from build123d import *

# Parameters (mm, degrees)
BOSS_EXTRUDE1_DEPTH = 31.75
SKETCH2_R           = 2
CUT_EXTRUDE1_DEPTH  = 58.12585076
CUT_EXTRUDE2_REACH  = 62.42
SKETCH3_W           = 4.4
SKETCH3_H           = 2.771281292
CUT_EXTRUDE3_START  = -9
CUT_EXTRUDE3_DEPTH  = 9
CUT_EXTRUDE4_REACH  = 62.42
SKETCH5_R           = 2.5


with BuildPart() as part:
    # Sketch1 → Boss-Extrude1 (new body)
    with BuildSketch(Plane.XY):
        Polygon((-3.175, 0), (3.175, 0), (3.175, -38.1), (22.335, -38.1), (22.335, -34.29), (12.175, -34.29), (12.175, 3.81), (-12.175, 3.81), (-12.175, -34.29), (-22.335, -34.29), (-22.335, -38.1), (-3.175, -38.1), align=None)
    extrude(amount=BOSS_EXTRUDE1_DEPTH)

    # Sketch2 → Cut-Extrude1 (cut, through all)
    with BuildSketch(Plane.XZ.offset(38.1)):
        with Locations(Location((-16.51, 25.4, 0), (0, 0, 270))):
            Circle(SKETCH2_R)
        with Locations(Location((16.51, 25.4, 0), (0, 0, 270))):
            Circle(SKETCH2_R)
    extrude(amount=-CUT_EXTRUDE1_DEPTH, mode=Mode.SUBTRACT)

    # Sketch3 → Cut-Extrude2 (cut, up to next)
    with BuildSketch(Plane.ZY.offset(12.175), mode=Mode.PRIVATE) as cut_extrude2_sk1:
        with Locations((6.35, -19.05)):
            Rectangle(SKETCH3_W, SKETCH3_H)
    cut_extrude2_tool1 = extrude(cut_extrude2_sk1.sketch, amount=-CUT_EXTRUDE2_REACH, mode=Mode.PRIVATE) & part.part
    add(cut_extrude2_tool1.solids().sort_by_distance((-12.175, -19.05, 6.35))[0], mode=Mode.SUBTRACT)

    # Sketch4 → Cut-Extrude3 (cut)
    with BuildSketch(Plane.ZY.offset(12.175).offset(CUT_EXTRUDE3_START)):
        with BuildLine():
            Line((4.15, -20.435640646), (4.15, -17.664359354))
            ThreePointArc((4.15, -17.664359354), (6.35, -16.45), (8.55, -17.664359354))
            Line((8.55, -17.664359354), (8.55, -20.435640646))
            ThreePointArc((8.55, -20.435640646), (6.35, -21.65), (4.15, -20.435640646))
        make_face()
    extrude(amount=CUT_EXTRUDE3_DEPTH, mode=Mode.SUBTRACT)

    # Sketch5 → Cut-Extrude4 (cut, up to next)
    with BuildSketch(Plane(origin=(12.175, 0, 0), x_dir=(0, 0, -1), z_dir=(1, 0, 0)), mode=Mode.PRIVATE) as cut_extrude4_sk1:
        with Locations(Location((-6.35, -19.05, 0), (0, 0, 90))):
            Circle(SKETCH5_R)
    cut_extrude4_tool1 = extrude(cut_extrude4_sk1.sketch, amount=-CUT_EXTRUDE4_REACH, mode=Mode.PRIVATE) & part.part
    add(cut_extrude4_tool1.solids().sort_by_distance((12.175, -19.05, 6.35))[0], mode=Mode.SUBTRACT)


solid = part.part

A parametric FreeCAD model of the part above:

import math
import FreeCAD as App
import Part
import Sketcher
from FreeCAD import Vector
Q = App.Units.Quantity

doc = App.newDocument("Part")
body = doc.addObject("PartDesign::Body", "Body")

sketch1 = body.newObject("Sketcher::SketchObject", "Sketch")
sketch1.AttachmentSupport = (doc.getObject("XY_Plane"), [""])
sketch1.MapMode = "FlatFace"
sketch1.addGeometry([
    Part.LineSegment(Vector(-3.2, 0, 0), Vector(3.2, 0, 0)),
    Part.LineSegment(Vector(3.2, 0, 0), Vector(3.2, -38.1, 0)),
    Part.LineSegment(Vector(3.2, -38.1, 0), Vector(22.3, -38.1, 0)),
    Part.LineSegment(Vector(22.3, -38.1, 0), Vector(22.3, -34.3, 0)),
    Part.LineSegment(Vector(22.3, -34.3, 0), Vector(12.2, -34.3, 0)),
    Part.LineSegment(Vector(12.2, -34.3, 0), Vector(12.2, 3.8, 0)),
    Part.LineSegment(Vector(12.2, 3.8, 0), Vector(-12.2, 3.8, 0)),
    Part.LineSegment(Vector(-12.2, 3.8, 0), Vector(-12.2, -34.3, 0)),
    Part.LineSegment(Vector(-12.2, -34.3, 0), Vector(-22.3, -34.3, 0)),
    Part.LineSegment(Vector(-22.3, -34.3, 0), Vector(-22.3, -38.1, 0)),
    Part.LineSegment(Vector(-22.3, -38.1, 0), Vector(-3.2, -38.1, 0)),
    Part.LineSegment(Vector(-3.2, -38.1, 0), Vector(-3.2, 0, 0)),
], False)
sketch1.addConstraint([
    Sketcher.Constraint("Coincident", 0, 2, 1, 1),
    Sketcher.Constraint("Coincident", 1, 2, 2, 1),
    Sketcher.Constraint("Coincident", 2, 2, 3, 1),
    Sketcher.Constraint("Coincident", 3, 2, 4, 1),
    Sketcher.Constraint("Coincident", 4, 2, 5, 1),
    Sketcher.Constraint("Coincident", 5, 2, 6, 1),
    Sketcher.Constraint("Coincident", 6, 2, 7, 1),
    Sketcher.Constraint("Coincident", 7, 2, 8, 1),
    Sketcher.Constraint("Coincident", 8, 2, 9, 1),
    Sketcher.Constraint("Coincident", 9, 2, 10, 1),
    Sketcher.Constraint("Coincident", 10, 2, 11, 1),
    Sketcher.Constraint("Coincident", 11, 2, 0, 1),
    Sketcher.Constraint("Horizontal", 0),
    Sketcher.Constraint("Vertical", 1),
    Sketcher.Constraint("Horizontal", 2),
    Sketcher.Constraint("Vertical", 3),
    Sketcher.Constraint("Horizontal", 4),
    Sketcher.Constraint("Vertical", 5),
    Sketcher.Constraint("Horizontal", 6),
    Sketcher.Constraint("Vertical", 7),
    Sketcher.Constraint("Horizontal", 8),
    Sketcher.Constraint("Vertical", 9),
    Sketcher.Constraint("Horizontal", 10),
    Sketcher.Constraint("Vertical", 11),
    Sketcher.Constraint("Symmetric", 0, 2, 11, 2, -1, 1),
    Sketcher.Constraint("Symmetric", 4, 2, 7, 2, -2),
    Sketcher.Constraint("Symmetric", 2, 2, 9, 2, -2),
    Sketcher.Constraint("Equal", 1, 5),
    Sketcher.Constraint("DistanceY", 1, 2, 1, 1, Q("38.1 mm")),
    Sketcher.Constraint("DistanceX", 1, 2, 4, 2, Q("9 mm")),
    Sketcher.Constraint("DistanceX", 0, 1, 0, 2, Q("6.35 mm")),
    Sketcher.Constraint("DistanceX", 2, 1, 2, 2, Q("19.16 mm")),
    Sketcher.Constraint("DistanceY", 3, 1, 3, 2, Q("3.81 mm")),
])
pad1 = body.newObject("PartDesign::Pad", "Pad")
pad1.Profile = sketch1
pad1.Length = 31.75

sketch2 = body.newObject("Sketcher::SketchObject", "Sketch001")
sketch2.AttachmentSupport = (doc.getObject("XZ_Plane"), [""])
sketch2.MapMode = "FlatFace"
sketch2.AttachmentOffset = App.Placement(Vector(0, 0, 38.1), App.Rotation())
sketch2.addGeometry([
    Part.Circle(Vector(-16.5, 25.4, 0), Vector(0, 0, 1), 2),
    Part.Circle(Vector(16.5, 25.4, 0), Vector(0, 0, 1), 2),
], False)
sketch2.addConstraint([
    Sketcher.Constraint("Equal", 0, 1),
    Sketcher.Constraint("Symmetric", 0, 3, 1, 3, -2),
    Sketcher.Constraint("Diameter", 0, Q("4 mm")),
    Sketcher.Constraint("DistanceY", -1, 1, 0, 3, Q("25.4 mm")),
    Sketcher.Constraint("DistanceX", 0, 3, -1, 1, Q("16.51 mm")),
])
pocket1 = body.newObject("PartDesign::Pocket", "Pocket")
pocket1.Profile = sketch2
pocket1.Type = "ThroughAll"

sketch3 = body.newObject("Sketcher::SketchObject", "Sketch002")
sketch3.AttachmentSupport = (doc.getObject("YZ_Plane"), [""])
sketch3.MapMode = "FlatFace"
sketch3.AttachmentOffset = App.Placement(Vector(0, 0, -12.175), App.Rotation())
sketch3.addGeometry([
    Part.LineSegment(Vector(-17.7, 4.2, 0), Vector(-20.4, 4.2, 0)),
    Part.LineSegment(Vector(-20.4, 4.2, 0), Vector(-20.4, 8.6, 0)),
    Part.LineSegment(Vector(-20.4, 8.6, 0), Vector(-17.7, 8.6, 0)),
    Part.LineSegment(Vector(-17.7, 8.6, 0), Vector(-17.7, 4.2, 0)),
], False)
sketch3.addConstraint([
    Sketcher.Constraint("Coincident", 0, 2, 1, 1),
    Sketcher.Constraint("Coincident", 1, 2, 2, 1),
    Sketcher.Constraint("Coincident", 2, 2, 3, 1),
    Sketcher.Constraint("Coincident", 3, 2, 0, 1),
    Sketcher.Constraint("Horizontal", 0),
    Sketcher.Constraint("Vertical", 1),
    Sketcher.Constraint("Horizontal", 2),
    Sketcher.Constraint("Vertical", 3),
    Sketcher.Constraint("DistanceY", 1, 1, 1, 2, Q("4.4 mm")),
    Sketcher.Constraint("DistanceY", -1, 1, 0, 2, Q("4.15 mm")),
    Sketcher.Constraint("DistanceX", 0, 2, 0, 1, Q("2.771281 mm")),
    Sketcher.Constraint("DistanceX", 0, 2, -1, 1, Q("20.435641 mm")),
])
pocket2 = body.newObject("PartDesign::Pocket", "Pocket001")
pocket2.Profile = sketch3
pocket2.Type = "UpToFirst"
pocket2.Reversed = True

sketch4 = body.newObject("Sketcher::SketchObject", "Sketch003")
sketch4.AttachmentSupport = (doc.getObject("YZ_Plane"), [""])
sketch4.MapMode = "FlatFace"
sketch4.AttachmentOffset = App.Placement(Vector(0, 0, -3.175), App.Rotation())
sketch4.addGeometry([
    Part.LineSegment(Vector(-17.7, 4.2, 0), Vector(-20.4, 4.2, 0)),
    Part.ArcOfCircle(Part.Circle(Vector(-19.1, 6.3, 0), Vector(0, 0, 1), 2.6), math.radians(122), math.radians(238)),
    Part.LineSegment(Vector(-20.4, 8.6, 0), Vector(-17.7, 8.6, 0)),
    Part.ArcOfCircle(Part.Circle(Vector(-19.1, 6.3, 0), Vector(0, 0, 1), 2.6), math.radians(-58), math.radians(58)),
], False)
sketch4.addConstraint([
    Sketcher.Constraint("Coincident", 0, 2, 1, 2),
    Sketcher.Constraint("Coincident", 1, 1, 2, 1),
    Sketcher.Constraint("Coincident", 2, 2, 3, 2),
    Sketcher.Constraint("Coincident", 3, 1, 0, 1),
    Sketcher.Constraint("Horizontal", 0),
    Sketcher.Constraint("Horizontal", 2),
    Sketcher.Constraint("Coincident", 3, 3, 1, 3),
    Sketcher.Constraint("Equal", 1, 3),
    Sketcher.Constraint("Vertical", 0, 2, 1, 1),
    Sketcher.Constraint("Radius", 1, Q("2.6 mm")),
    Sketcher.Constraint("DistanceY", 0, 2, 1, 3, Q("2.2 mm")),
    Sketcher.Constraint("DistanceX", 1, 3, -1, 1, Q("19.05 mm")),
    Sketcher.Constraint("DistanceY", -1, 1, 1, 3, Q("6.35 mm")),
])
pocket3 = body.newObject("PartDesign::Pocket", "Pocket002")
pocket3.Profile = sketch4
pocket3.Length = 9

sketch5 = body.newObject("Sketcher::SketchObject", "Sketch004")
sketch5.AttachmentSupport = (doc.getObject("YZ_Plane"), [""])
sketch5.MapMode = "FlatFace"
sketch5.AttachmentOffset = App.Placement(Vector(0, 0, 12.175), App.Rotation())
sketch5.addGeometry(Part.Circle(Vector(-19.1, 6.3, 0), Vector(0, 0, 1), 2.5), False)
sketch5.addConstraint([
    Sketcher.Constraint("Diameter", 0, Q("5 mm")),
    Sketcher.Constraint("DistanceX", 0, 3, -1, 1, Q("19.05 mm")),
    Sketcher.Constraint("DistanceY", -1, 1, 0, 3, Q("6.35 mm")),
])
pocket4 = body.newObject("PartDesign::Pocket", "Pocket003")
pocket4.Profile = sketch5
pocket4.Type = "UpToFirst"

doc.recompute()
